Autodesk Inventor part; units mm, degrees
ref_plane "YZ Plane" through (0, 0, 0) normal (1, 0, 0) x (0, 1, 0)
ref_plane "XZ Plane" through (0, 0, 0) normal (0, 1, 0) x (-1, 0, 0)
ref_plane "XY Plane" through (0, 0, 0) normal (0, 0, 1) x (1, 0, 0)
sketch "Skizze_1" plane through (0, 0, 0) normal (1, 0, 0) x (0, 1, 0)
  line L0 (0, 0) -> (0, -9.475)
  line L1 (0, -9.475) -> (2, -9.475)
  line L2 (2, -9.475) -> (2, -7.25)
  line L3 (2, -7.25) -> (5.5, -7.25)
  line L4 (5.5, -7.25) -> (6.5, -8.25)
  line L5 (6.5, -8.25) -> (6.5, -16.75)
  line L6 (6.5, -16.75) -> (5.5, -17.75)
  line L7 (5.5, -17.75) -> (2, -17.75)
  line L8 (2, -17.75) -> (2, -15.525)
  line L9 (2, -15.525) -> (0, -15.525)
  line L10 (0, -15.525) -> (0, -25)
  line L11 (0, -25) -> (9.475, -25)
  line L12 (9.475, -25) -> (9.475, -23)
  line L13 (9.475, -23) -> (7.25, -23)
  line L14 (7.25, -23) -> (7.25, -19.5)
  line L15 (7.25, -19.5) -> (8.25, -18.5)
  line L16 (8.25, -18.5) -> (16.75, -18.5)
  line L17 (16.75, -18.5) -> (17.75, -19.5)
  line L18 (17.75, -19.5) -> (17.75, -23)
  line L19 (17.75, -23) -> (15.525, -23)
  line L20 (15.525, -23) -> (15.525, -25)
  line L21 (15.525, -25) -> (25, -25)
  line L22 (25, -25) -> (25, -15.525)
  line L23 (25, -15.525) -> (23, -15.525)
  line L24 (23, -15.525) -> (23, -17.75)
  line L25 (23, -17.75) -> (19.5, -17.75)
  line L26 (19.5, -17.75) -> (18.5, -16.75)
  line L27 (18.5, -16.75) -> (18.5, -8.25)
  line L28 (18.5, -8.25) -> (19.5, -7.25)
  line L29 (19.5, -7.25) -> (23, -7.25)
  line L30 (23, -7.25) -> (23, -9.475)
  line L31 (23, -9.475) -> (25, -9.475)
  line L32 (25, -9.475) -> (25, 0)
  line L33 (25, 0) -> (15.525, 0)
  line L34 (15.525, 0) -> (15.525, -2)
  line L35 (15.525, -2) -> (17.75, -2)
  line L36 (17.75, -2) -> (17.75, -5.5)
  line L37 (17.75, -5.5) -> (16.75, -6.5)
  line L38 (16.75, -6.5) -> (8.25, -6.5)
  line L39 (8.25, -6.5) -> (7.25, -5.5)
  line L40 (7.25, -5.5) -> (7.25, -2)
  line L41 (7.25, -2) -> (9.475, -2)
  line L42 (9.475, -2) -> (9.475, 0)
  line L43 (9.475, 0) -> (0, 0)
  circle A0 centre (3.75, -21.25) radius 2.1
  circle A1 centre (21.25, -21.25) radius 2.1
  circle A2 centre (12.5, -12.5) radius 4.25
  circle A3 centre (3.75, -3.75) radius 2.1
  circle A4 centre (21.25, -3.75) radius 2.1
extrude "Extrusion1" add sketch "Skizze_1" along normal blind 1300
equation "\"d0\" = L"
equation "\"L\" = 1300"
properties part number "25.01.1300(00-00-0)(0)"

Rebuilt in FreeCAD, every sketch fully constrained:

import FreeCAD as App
import Part
import Sketcher
Q = App.Units.Quantity


def add_polygon(sketch, points):
    """Adds a closed chain of lines whose ends are joined by coincident constraints."""
    first, n = sketch.GeometryCount, len(points)
    for a, b in zip(points, points[1:] + points[:1]):
        sketch.addGeometry(Part.LineSegment(App.Vector(*a, 0), App.Vector(*b, 0)), False)
    for i in range(n):
        sketch.addConstraint(Sketcher.Constraint("Coincident", first + i, 2, first + (i + 1) % n, 1))

doc = App.newDocument("Part")
body = doc.addObject("PartDesign::Body", "Body")

# Sketch on YZ plane
sketch1 = doc.addObject("Sketcher::SketchObject", "Sketch")
body.addObject(sketch1)
sketch1.AttachmentSupport = (doc.YZ_Plane, [""])
sketch1.MapMode = "FlatFace"
add_polygon(sketch1, [(9.475, 0), (0, 0), (0, -9.475), (2, -9.475), (2, -7.25), (5.5, -7.25), (6.5, -8.25), (6.5, -16.75), (5.5, -17.75), (2, -17.75), (2, -15.525), (0, -15.525), (0, -25), (9.475, -25), (9.475, -23), (7.25, -23), (7.25, -19.5), (8.25, -18.5), (16.75, -18.5), (17.75, -19.5), (17.75, -23), (15.525, -23), (15.525, -25), (25, -25), (25, -15.525), (23, -15.525), (23, -17.75), (19.5, -17.75), (18.5, -16.75), (18.5, -8.25), (19.5, -7.25), (23, -7.25), (23, -9.475), (25, -9.475), (25, 0), (15.525, 0), (15.525, -2), (17.75, -2), (17.75, -5.5), (16.75, -6.5), (8.25, -6.5), (7.25, -5.5), (7.25, -2), (9.475, -2)])  # lines 0-43
sketch1.addGeometry(Part.Circle(App.Vector(3.75, -21.25, 0), App.Vector(0, 0, 1), 2.1), False)  # 44
sketch1.addGeometry(Part.Circle(App.Vector(21.25, -21.25, 0), App.Vector(0, 0, 1), 2.1), False)  # 45
sketch1.addGeometry(Part.Circle(App.Vector(3.75, -3.75, 0), App.Vector(0, 0, 1), 2.1), False)  # 46
sketch1.addGeometry(Part.Circle(App.Vector(12.5, -12.5, 0), App.Vector(0, 0, 1), 4.25), False)  # 47
sketch1.addGeometry(Part.Circle(App.Vector(21.25, -3.75, 0), App.Vector(0, 0, 1), 2.1), False)  # 48
sketch1.addConstraint(Sketcher.Constraint("Horizontal", 0))
sketch1.addConstraint(Sketcher.Constraint("Vertical", 1))
sketch1.addConstraint(Sketcher.Constraint("Horizontal", 2))
sketch1.addConstraint(Sketcher.Constraint("Vertical", 3))
sketch1.addConstraint(Sketcher.Constraint("Horizontal", 4))
sketch1.addConstraint(Sketcher.Constraint("Vertical", 6))
sketch1.addConstraint(Sketcher.Constraint("Horizontal", 8))
sketch1.addConstraint(Sketcher.Constraint("Vertical", 9))
sketch1.addConstraint(Sketcher.Constraint("Horizontal", 10))
sketch1.addConstraint(Sketcher.Constraint("Vertical", 11))
sketch1.addConstraint(Sketcher.Constraint("Horizontal", 12))
sketch1.addConstraint(Sketcher.Constraint("Vertical", 13))
sketch1.addConstraint(Sketcher.Constraint("Horizontal", 14))
sketch1.addConstraint(Sketcher.Constraint("Vertical", 15))
sketch1.addConstraint(Sketcher.Constraint("Horizontal", 17))
sketch1.addConstraint(Sketcher.Constraint("Vertical", 19))
sketch1.addConstraint(Sketcher.Constraint("Horizontal", 20))
sketch1.addConstraint(Sketcher.Constraint("Vertical", 21))
sketch1.addConstraint(Sketcher.Constraint("Horizontal", 22))
sketch1.addConstraint(Sketcher.Constraint("Vertical", 23))
sketch1.addConstraint(Sketcher.Constraint("Horizontal", 24))
sketch1.addConstraint(Sketcher.Constraint("Vertical", 25))
sketch1.addConstraint(Sketcher.Constraint("Horizontal", 26))
sketch1.addConstraint(Sketcher.Constraint("Vertical", 28))
sketch1.addConstraint(Sketcher.Constraint("Horizontal", 30))
sketch1.addConstraint(Sketcher.Constraint("Vertical", 31))
sketch1.addConstraint(Sketcher.Constraint("Horizontal", 32))
sketch1.addConstraint(Sketcher.Constraint("Vertical", 33))
sketch1.addConstraint(Sketcher.Constraint("Horizontal", 34))
sketch1.addConstraint(Sketcher.Constraint("Vertical", 35))
sketch1.addConstraint(Sketcher.Constraint("Horizontal", 36))
sketch1.addConstraint(Sketcher.Constraint("Vertical", 37))
sketch1.addConstraint(Sketcher.Constraint("Horizontal", 39))
sketch1.addConstraint(Sketcher.Constraint("Vertical", 41))
sketch1.addConstraint(Sketcher.Constraint("Horizontal", 42))
sketch1.addConstraint(Sketcher.Constraint("Vertical", 43))
sketch1.addConstraint(Sketcher.Constraint("Coincident", 0, 2, -1, 1))
sketch1.addConstraint(Sketcher.Constraint("Equal", 44, 45))
sketch1.addConstraint(Sketcher.Constraint("Equal", 45, 46))
sketch1.addConstraint(Sketcher.Constraint("Equal", 46, 48))
sketch1.addConstraint(Sketcher.Constraint("PointOnObject", 10, 2, -2))
sketch1.addConstraint(Sketcher.Constraint("PointOnObject", 33, 2, -1))
sketch1.addConstraint(Sketcher.Constraint("Perpendicular", 5, 7))
sketch1.addConstraint(Sketcher.Constraint("Parallel", 7, 16))
sketch1.addConstraint(Sketcher.Constraint("Perpendicular", 16, 18))
sketch1.addConstraint(Sketcher.Constraint("Parallel", 18, 27))
sketch1.addConstraint(Sketcher.Constraint("Perpendicular", 27, 29))
sketch1.addConstraint(Sketcher.Constraint("Parallel", 29, 38))
sketch1.addConstraint(Sketcher.Constraint("Perpendicular", 38, 40))
sketch1.addConstraint(Sketcher.Constraint("Horizontal", 44, 3, 45, 3))
sketch1.addConstraint(Sketcher.Constraint("Horizontal", 46, 3, 48, 3))
sketch1.addConstraint(Sketcher.Constraint("Horizontal", 15, 2, 18, 2))
sketch1.addConstraint(Sketcher.Constraint("Horizontal", 14, 2, 19, 2))
sketch1.addConstraint(Sketcher.Constraint("Horizontal", 12, 2, 21, 2))
sketch1.addConstraint(Sketcher.Constraint("Horizontal", 10, 2, 23, 2))
sketch1.addConstraint(Sketcher.Constraint("Horizontal", 8, 2, 25, 2))
sketch1.addConstraint(Sketcher.Constraint("Horizontal", 6, 2, 27, 2))
sketch1.addConstraint(Sketcher.Constraint("Horizontal", 5, 2, 28, 2))
sketch1.addConstraint(Sketcher.Constraint("Horizontal", 4, 2, 29, 2))
sketch1.addConstraint(Sketcher.Constraint("Horizontal", 2, 2, 31, 2))
sketch1.addConstraint(Sketcher.Constraint("Horizontal", 37, 2, 40, 2))
sketch1.addConstraint(Sketcher.Constraint("Horizontal", 36, 2, 41, 2))
sketch1.addConstraint(Sketcher.Constraint("Vertical", 44, 3, 46, 3))
sketch1.addConstraint(Sketcher.Constraint("Vertical", 45, 3, 48, 3))
sketch1.addConstraint(Sketcher.Constraint("Vertical", 4, 2, 7, 2))
sketch1.addConstraint(Sketcher.Constraint("Vertical", 3, 2, 8, 2))
sketch1.addConstraint(Sketcher.Constraint("Vertical", 26, 2, 29, 2))
sketch1.addConstraint(Sketcher.Constraint("Vertical", 25, 2, 30, 2))
sketch1.addConstraint(Sketcher.Constraint("Vertical", 23, 2, 32, 2))
sketch1.addConstraint(Sketcher.Constraint("Vertical", 21, 2, 34, 2))
sketch1.addConstraint(Sketcher.Constraint("Vertical", 19, 2, 36, 2))
sketch1.addConstraint(Sketcher.Constraint("Vertical", 17, 2, 38, 2))
sketch1.addConstraint(Sketcher.Constraint("Vertical", 16, 2, 39, 2))
sketch1.addConstraint(Sketcher.Constraint("Vertical", 13, 2, 42, 2))
sketch1.addConstraint(Sketcher.Constraint("Equal", 14, 20))
sketch1.addConstraint(Sketcher.Constraint("Equal", 12, 22))
sketch1.addConstraint(Sketcher.Constraint("Equal", 10, 24))
sketch1.addConstraint(Sketcher.Constraint("Equal", 8, 26))
sketch1.addConstraint(Sketcher.Constraint("Equal", 34, 1))
sketch1.addConstraint(Sketcher.Constraint("Equal", 42, 3))
sketch1.addConstraint(Sketcher.Constraint("Equal", 39, 6))
sketch1.addConstraint(Sketcher.Constraint("Equal", 3, 9))
sketch1.addConstraint(Sketcher.Constraint("Equal", 1, 11))
sketch1.addConstraint(Sketcher.Constraint("Equal", 32, 13))
sketch1.addConstraint(Sketcher.Constraint("Equal", 30, 15))
sketch1.addConstraint(Sketcher.Constraint("Equal", 21, 35))
sketch1.addConstraint(Sketcher.Constraint("Equal", 19, 37))
sketch1.addConstraint(Sketcher.Constraint("Equal", 7, 16))
sketch1.addConstraint(Sketcher.Constraint("Diameter", 44, Q("4.2 mm")))
sketch1.addConstraint(Sketcher.Constraint("Diameter", 47, Q("8.5 mm")))
sketch1.addConstraint(Sketcher.Constraint("DistanceX", 2, 1, 2, 2, Q("2 mm")))
sketch1.addConstraint(Sketcher.Constraint("DistanceX", 4, 1, 4, 2, Q("3.5 mm")))
sketch1.addConstraint(Sketcher.Constraint("DistanceX", 17, 1, 17, 2, Q("8.5 mm")))
sketch1.addConstraint(Sketcher.Constraint("DistanceY", 11, 2, -1, 1, Q("25 mm")))
sketch1.addConstraint(Sketcher.Constraint("DistanceX", 4, 2, 47, 3, Q("7 mm")))
sketch1.addConstraint(Sketcher.Constraint("DistanceX", 4, 2, 5, 2, Q("1 mm")))
sketch1.addConstraint(Sketcher.Constraint("DistanceY", 17, 2, 47, 3, Q("6 mm")))
sketch1.addConstraint(Sketcher.Constraint("DistanceX", 44, 3, 45, 3, Q("17.5 mm")))
sketch1.addConstraint(Sketcher.Constraint("DistanceY", 44, 3, 46, 3, Q("17.5 mm")))
sketch1.addConstraint(Sketcher.Constraint("DistanceY", 3, 2, 46, 3, Q("3.5 mm")))
sketch1.addConstraint(Sketcher.Constraint("DistanceX", 44, 3, 14, 2, Q("3.5 mm")))
sketch1.addConstraint(Sketcher.Constraint("DistanceX", 0, 2, 0, 1, Q("9.475 mm")))
pad1 = doc.addObject("PartDesign::Pad", "Pad")
body.addObject(pad1)
pad1.Profile = sketch1
pad1.Length = 1300

doc.recompute()
